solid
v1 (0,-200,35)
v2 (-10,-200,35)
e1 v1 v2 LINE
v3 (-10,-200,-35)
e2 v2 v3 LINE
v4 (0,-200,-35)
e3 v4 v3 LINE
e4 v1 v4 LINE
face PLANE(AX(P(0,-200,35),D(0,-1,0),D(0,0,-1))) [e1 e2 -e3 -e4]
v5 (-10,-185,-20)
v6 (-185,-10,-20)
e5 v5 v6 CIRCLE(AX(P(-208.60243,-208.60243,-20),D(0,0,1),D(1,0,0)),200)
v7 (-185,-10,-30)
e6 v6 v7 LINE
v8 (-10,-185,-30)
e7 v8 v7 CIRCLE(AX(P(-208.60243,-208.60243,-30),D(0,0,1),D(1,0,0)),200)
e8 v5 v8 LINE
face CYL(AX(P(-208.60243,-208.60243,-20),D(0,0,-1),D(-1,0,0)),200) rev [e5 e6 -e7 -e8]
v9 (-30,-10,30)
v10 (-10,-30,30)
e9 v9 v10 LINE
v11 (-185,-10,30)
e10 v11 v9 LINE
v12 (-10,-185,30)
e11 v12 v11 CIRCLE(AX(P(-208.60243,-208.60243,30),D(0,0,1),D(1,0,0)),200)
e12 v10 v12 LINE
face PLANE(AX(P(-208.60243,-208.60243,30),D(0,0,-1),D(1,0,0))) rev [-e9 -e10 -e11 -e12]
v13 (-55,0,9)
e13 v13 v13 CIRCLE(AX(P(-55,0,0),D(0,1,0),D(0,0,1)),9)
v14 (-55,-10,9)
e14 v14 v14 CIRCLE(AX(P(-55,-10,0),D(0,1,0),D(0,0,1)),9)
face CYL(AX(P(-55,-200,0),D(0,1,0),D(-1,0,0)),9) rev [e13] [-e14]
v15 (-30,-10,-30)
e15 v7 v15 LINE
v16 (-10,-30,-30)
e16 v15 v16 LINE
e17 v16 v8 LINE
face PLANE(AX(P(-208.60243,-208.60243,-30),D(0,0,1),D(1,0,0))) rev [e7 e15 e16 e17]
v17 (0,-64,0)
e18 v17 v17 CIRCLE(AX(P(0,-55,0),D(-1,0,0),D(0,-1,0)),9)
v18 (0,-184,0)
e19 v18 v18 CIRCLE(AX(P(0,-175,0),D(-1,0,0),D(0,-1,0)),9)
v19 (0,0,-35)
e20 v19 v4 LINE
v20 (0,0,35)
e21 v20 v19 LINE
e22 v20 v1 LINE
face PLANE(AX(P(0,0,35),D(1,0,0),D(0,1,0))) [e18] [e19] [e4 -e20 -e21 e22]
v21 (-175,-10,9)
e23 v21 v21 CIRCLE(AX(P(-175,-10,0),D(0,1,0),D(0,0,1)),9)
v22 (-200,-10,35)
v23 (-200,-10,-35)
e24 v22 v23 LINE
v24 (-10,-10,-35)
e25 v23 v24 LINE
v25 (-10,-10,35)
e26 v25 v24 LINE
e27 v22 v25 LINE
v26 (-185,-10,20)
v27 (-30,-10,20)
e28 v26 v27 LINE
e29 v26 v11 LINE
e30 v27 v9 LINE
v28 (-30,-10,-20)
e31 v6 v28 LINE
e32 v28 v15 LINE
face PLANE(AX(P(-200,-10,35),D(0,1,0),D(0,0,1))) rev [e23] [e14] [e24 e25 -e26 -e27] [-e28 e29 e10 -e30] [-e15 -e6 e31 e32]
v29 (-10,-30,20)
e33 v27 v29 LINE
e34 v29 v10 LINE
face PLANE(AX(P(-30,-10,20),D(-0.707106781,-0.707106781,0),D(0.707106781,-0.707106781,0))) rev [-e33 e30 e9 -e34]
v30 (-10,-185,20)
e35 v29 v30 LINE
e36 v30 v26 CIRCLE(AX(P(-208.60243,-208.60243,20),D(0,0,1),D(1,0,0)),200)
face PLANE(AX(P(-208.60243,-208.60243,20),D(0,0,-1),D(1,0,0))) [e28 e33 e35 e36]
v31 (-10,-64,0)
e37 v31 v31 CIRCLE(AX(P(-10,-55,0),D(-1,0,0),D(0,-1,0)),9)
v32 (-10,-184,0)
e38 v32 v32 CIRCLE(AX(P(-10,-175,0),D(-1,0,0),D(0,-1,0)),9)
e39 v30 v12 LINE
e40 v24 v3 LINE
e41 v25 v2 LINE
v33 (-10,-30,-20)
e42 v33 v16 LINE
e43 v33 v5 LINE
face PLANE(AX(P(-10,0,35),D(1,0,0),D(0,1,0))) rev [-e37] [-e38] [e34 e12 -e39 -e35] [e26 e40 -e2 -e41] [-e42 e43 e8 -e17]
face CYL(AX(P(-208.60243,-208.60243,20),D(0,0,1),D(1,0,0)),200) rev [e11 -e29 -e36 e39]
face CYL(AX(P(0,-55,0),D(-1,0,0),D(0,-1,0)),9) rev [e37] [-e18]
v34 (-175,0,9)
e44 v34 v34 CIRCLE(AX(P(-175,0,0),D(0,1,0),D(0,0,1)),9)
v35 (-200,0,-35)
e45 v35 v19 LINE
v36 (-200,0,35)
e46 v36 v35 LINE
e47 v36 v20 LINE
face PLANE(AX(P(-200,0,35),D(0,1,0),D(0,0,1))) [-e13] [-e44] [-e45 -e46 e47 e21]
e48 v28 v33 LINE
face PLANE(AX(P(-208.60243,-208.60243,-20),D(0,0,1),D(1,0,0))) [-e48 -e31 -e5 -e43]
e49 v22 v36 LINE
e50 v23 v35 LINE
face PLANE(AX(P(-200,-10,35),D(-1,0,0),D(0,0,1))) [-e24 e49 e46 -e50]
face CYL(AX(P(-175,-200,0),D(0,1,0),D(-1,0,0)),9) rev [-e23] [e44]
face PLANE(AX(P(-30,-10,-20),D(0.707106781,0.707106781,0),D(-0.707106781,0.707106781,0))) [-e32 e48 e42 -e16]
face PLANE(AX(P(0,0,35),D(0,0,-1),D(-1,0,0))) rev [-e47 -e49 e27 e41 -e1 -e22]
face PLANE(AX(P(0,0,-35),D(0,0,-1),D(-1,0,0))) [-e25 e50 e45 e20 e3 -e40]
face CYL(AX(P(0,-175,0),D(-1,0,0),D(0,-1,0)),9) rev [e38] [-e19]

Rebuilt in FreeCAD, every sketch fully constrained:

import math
import FreeCAD as App
import Part
import Sketcher
Q = App.Units.Quantity

doc = App.newDocument("Part")
body = doc.addObject("PartDesign::Body", "Body")

sketch1 = body.newObject("Sketcher::SketchObject", "Sketch")
sketch1.AttachmentSupport = (doc.getObject("XY_Plane"), [""])
sketch1.MapMode = "FlatFace"
sketch1.addGeometry([
    Part.LineSegment(App.Vector(0, 0, 0), App.Vector(-200, 0, 0)),
    Part.LineSegment(App.Vector(-200, 0, 0), App.Vector(-200, -10, 0)),
    Part.LineSegment(App.Vector(-200, -10, 0), App.Vector(-10, -10, 0)),
    Part.LineSegment(App.Vector(-10, -10, 0), App.Vector(-10, -200, 0)),
    Part.LineSegment(App.Vector(-10, -200, 0), App.Vector(0, -200, 0)),
    Part.LineSegment(App.Vector(0, -200, 0), App.Vector(0, 0, 0)),
], False)
sketch1.addConstraint([
    Sketcher.Constraint("Coincident", 0, 2, 1, 1),
    Sketcher.Constraint("Coincident", 1, 2, 2, 1),
    Sketcher.Constraint("Coincident", 2, 2, 3, 1),
    Sketcher.Constraint("Coincident", 3, 2, 4, 1),
    Sketcher.Constraint("Coincident", 4, 2, 5, 1),
    Sketcher.Constraint("Coincident", 5, 2, 0, 1),
    Sketcher.Constraint("Horizontal", 0),
    Sketcher.Constraint("Vertical", 1),
    Sketcher.Constraint("Horizontal", 2),
    Sketcher.Constraint("Vertical", 3),
    Sketcher.Constraint("Horizontal", 4),
    Sketcher.Constraint("Vertical", 5),
    Sketcher.Constraint("Coincident", 5, 2, -1, 1),
    Sketcher.Constraint("Equal", 4, 1),
    Sketcher.Constraint("Equal", 2, 3),
    Sketcher.Constraint("DistanceX", 0, 2, 0, 1, Q("200 mm")),
    Sketcher.Constraint("DistanceX", 2, 1, 2, 2, Q("190 mm")),
])
pad1 = body.newObject("PartDesign::Pad", "Pad")
pad1.Profile = sketch1
pad1.Length = 70
pad1.Midplane = True

sketch2 = body.newObject("Sketcher::SketchObject", "Sketch001")
sketch2.AttachmentSupport = (doc.getObject("XY_Plane"), [""])
sketch2.MapMode = "FlatFace"
sketch2.AttachmentOffset = App.Placement(App.Vector(0, 0, -30), App.Rotation())
sketch2.addGeometry([
    Part.LineSegment(App.Vector(-30, -10, 0), App.Vector(-10, -30, 0)),
    Part.LineSegment(App.Vector(-10, -30, 0), App.Vector(-10, -185, 0)),
    Part.ArcOfCircle(Part.Circle(App.Vector(-209, -209, 0), App.Vector(0, 0, 1), 200), math.radians(7), math.radians(83)),
    Part.LineSegment(App.Vector(-185, -10, 0), App.Vector(-30, -10, 0)),
], False)
sketch2.addConstraint([
    Sketcher.Constraint("Coincident", 0, 2, 1, 1),
    Sketcher.Constraint("Coincident", 1, 2, 2, 1),
    Sketcher.Constraint("Coincident", 2, 2, 3, 1),
    Sketcher.Constraint("Coincident", 3, 2, 0, 1),
    Sketcher.Constraint("Vertical", 1),
    Sketcher.Constraint("Horizontal", 3),
    Sketcher.Constraint("Equal", 3, 1),
    Sketcher.Constraint("Radius", 2, Q("200 mm")),
    Sketcher.Constraint("DistanceX", 3, 1, 3, 2, Q("155 mm")),
    Sketcher.Constraint("Angle", 0, Q("-45 deg")),
    Sketcher.Constraint("DistanceX", 0, 2, -1, 1, Q("10 mm")),
    Sketcher.Constraint("DistanceY", 0, 2, -1, 1, Q("30 mm")),
    Sketcher.Constraint("DistanceY", 2, 2, -1, 1, Q("10 mm")),
])
pad2 = body.newObject("PartDesign::Pad", "Pad001")
pad2.Profile = sketch2
pad2.Length = 10
doc.recompute()

mirrored = body.newObject("PartDesign::Mirrored", "Mirrored")
mirrored.Originals = [pad2]
mirrored.MirrorPlane = (doc.getObject("XY_Plane"), [""])
body.Tip = mirrored

sketch3 = body.newObject("Sketcher::SketchObject", "Sketch002")
sketch3.AttachmentSupport = (doc.getObject("YZ_Plane"), [""])
sketch3.MapMode = "FlatFace"
sketch3.AttachmentOffset = App.Placement(App.Vector(0, 0, -10), App.Rotation())
sketch3.addGeometry([
    Part.Circle(App.Vector(-55, 0, 0), App.Vector(0, 0, 1), 9),
    Part.Circle(App.Vector(-175, 0, 0), App.Vector(0, 0, 1), 9),
], False)
sketch3.addConstraint([
    Sketcher.Constraint("Equal", 0, 1),
    Sketcher.Constraint("PointOnObject", 0, 3, -1),
    Sketcher.Constraint("PointOnObject", 1, 3, -1),
    Sketcher.Constraint("Diameter", 0, Q("18 mm")),
    Sketcher.Constraint("DistanceX", 0, 3, -1, 1, Q("55 mm")),
    Sketcher.Constraint("DistanceX", 1, 3, -1, 1, Q("175 mm")),
])
pocket1 = body.newObject("PartDesign::Pocket", "Pocket")
pocket1.Profile = sketch3
pocket1.Type = "ThroughAll"
pocket1.Reversed = True
doc.recompute()

polarpattern = body.newObject("PartDesign::PolarPattern", "PolarPattern")
polarpattern.Originals = [pocket1]
polarpattern.Axis = (doc.getObject("Z_Axis"), [""])
polarpattern.Angle = 360
polarpattern.Occurrences = 4
body.Tip = polarpattern

doc.recompute()
